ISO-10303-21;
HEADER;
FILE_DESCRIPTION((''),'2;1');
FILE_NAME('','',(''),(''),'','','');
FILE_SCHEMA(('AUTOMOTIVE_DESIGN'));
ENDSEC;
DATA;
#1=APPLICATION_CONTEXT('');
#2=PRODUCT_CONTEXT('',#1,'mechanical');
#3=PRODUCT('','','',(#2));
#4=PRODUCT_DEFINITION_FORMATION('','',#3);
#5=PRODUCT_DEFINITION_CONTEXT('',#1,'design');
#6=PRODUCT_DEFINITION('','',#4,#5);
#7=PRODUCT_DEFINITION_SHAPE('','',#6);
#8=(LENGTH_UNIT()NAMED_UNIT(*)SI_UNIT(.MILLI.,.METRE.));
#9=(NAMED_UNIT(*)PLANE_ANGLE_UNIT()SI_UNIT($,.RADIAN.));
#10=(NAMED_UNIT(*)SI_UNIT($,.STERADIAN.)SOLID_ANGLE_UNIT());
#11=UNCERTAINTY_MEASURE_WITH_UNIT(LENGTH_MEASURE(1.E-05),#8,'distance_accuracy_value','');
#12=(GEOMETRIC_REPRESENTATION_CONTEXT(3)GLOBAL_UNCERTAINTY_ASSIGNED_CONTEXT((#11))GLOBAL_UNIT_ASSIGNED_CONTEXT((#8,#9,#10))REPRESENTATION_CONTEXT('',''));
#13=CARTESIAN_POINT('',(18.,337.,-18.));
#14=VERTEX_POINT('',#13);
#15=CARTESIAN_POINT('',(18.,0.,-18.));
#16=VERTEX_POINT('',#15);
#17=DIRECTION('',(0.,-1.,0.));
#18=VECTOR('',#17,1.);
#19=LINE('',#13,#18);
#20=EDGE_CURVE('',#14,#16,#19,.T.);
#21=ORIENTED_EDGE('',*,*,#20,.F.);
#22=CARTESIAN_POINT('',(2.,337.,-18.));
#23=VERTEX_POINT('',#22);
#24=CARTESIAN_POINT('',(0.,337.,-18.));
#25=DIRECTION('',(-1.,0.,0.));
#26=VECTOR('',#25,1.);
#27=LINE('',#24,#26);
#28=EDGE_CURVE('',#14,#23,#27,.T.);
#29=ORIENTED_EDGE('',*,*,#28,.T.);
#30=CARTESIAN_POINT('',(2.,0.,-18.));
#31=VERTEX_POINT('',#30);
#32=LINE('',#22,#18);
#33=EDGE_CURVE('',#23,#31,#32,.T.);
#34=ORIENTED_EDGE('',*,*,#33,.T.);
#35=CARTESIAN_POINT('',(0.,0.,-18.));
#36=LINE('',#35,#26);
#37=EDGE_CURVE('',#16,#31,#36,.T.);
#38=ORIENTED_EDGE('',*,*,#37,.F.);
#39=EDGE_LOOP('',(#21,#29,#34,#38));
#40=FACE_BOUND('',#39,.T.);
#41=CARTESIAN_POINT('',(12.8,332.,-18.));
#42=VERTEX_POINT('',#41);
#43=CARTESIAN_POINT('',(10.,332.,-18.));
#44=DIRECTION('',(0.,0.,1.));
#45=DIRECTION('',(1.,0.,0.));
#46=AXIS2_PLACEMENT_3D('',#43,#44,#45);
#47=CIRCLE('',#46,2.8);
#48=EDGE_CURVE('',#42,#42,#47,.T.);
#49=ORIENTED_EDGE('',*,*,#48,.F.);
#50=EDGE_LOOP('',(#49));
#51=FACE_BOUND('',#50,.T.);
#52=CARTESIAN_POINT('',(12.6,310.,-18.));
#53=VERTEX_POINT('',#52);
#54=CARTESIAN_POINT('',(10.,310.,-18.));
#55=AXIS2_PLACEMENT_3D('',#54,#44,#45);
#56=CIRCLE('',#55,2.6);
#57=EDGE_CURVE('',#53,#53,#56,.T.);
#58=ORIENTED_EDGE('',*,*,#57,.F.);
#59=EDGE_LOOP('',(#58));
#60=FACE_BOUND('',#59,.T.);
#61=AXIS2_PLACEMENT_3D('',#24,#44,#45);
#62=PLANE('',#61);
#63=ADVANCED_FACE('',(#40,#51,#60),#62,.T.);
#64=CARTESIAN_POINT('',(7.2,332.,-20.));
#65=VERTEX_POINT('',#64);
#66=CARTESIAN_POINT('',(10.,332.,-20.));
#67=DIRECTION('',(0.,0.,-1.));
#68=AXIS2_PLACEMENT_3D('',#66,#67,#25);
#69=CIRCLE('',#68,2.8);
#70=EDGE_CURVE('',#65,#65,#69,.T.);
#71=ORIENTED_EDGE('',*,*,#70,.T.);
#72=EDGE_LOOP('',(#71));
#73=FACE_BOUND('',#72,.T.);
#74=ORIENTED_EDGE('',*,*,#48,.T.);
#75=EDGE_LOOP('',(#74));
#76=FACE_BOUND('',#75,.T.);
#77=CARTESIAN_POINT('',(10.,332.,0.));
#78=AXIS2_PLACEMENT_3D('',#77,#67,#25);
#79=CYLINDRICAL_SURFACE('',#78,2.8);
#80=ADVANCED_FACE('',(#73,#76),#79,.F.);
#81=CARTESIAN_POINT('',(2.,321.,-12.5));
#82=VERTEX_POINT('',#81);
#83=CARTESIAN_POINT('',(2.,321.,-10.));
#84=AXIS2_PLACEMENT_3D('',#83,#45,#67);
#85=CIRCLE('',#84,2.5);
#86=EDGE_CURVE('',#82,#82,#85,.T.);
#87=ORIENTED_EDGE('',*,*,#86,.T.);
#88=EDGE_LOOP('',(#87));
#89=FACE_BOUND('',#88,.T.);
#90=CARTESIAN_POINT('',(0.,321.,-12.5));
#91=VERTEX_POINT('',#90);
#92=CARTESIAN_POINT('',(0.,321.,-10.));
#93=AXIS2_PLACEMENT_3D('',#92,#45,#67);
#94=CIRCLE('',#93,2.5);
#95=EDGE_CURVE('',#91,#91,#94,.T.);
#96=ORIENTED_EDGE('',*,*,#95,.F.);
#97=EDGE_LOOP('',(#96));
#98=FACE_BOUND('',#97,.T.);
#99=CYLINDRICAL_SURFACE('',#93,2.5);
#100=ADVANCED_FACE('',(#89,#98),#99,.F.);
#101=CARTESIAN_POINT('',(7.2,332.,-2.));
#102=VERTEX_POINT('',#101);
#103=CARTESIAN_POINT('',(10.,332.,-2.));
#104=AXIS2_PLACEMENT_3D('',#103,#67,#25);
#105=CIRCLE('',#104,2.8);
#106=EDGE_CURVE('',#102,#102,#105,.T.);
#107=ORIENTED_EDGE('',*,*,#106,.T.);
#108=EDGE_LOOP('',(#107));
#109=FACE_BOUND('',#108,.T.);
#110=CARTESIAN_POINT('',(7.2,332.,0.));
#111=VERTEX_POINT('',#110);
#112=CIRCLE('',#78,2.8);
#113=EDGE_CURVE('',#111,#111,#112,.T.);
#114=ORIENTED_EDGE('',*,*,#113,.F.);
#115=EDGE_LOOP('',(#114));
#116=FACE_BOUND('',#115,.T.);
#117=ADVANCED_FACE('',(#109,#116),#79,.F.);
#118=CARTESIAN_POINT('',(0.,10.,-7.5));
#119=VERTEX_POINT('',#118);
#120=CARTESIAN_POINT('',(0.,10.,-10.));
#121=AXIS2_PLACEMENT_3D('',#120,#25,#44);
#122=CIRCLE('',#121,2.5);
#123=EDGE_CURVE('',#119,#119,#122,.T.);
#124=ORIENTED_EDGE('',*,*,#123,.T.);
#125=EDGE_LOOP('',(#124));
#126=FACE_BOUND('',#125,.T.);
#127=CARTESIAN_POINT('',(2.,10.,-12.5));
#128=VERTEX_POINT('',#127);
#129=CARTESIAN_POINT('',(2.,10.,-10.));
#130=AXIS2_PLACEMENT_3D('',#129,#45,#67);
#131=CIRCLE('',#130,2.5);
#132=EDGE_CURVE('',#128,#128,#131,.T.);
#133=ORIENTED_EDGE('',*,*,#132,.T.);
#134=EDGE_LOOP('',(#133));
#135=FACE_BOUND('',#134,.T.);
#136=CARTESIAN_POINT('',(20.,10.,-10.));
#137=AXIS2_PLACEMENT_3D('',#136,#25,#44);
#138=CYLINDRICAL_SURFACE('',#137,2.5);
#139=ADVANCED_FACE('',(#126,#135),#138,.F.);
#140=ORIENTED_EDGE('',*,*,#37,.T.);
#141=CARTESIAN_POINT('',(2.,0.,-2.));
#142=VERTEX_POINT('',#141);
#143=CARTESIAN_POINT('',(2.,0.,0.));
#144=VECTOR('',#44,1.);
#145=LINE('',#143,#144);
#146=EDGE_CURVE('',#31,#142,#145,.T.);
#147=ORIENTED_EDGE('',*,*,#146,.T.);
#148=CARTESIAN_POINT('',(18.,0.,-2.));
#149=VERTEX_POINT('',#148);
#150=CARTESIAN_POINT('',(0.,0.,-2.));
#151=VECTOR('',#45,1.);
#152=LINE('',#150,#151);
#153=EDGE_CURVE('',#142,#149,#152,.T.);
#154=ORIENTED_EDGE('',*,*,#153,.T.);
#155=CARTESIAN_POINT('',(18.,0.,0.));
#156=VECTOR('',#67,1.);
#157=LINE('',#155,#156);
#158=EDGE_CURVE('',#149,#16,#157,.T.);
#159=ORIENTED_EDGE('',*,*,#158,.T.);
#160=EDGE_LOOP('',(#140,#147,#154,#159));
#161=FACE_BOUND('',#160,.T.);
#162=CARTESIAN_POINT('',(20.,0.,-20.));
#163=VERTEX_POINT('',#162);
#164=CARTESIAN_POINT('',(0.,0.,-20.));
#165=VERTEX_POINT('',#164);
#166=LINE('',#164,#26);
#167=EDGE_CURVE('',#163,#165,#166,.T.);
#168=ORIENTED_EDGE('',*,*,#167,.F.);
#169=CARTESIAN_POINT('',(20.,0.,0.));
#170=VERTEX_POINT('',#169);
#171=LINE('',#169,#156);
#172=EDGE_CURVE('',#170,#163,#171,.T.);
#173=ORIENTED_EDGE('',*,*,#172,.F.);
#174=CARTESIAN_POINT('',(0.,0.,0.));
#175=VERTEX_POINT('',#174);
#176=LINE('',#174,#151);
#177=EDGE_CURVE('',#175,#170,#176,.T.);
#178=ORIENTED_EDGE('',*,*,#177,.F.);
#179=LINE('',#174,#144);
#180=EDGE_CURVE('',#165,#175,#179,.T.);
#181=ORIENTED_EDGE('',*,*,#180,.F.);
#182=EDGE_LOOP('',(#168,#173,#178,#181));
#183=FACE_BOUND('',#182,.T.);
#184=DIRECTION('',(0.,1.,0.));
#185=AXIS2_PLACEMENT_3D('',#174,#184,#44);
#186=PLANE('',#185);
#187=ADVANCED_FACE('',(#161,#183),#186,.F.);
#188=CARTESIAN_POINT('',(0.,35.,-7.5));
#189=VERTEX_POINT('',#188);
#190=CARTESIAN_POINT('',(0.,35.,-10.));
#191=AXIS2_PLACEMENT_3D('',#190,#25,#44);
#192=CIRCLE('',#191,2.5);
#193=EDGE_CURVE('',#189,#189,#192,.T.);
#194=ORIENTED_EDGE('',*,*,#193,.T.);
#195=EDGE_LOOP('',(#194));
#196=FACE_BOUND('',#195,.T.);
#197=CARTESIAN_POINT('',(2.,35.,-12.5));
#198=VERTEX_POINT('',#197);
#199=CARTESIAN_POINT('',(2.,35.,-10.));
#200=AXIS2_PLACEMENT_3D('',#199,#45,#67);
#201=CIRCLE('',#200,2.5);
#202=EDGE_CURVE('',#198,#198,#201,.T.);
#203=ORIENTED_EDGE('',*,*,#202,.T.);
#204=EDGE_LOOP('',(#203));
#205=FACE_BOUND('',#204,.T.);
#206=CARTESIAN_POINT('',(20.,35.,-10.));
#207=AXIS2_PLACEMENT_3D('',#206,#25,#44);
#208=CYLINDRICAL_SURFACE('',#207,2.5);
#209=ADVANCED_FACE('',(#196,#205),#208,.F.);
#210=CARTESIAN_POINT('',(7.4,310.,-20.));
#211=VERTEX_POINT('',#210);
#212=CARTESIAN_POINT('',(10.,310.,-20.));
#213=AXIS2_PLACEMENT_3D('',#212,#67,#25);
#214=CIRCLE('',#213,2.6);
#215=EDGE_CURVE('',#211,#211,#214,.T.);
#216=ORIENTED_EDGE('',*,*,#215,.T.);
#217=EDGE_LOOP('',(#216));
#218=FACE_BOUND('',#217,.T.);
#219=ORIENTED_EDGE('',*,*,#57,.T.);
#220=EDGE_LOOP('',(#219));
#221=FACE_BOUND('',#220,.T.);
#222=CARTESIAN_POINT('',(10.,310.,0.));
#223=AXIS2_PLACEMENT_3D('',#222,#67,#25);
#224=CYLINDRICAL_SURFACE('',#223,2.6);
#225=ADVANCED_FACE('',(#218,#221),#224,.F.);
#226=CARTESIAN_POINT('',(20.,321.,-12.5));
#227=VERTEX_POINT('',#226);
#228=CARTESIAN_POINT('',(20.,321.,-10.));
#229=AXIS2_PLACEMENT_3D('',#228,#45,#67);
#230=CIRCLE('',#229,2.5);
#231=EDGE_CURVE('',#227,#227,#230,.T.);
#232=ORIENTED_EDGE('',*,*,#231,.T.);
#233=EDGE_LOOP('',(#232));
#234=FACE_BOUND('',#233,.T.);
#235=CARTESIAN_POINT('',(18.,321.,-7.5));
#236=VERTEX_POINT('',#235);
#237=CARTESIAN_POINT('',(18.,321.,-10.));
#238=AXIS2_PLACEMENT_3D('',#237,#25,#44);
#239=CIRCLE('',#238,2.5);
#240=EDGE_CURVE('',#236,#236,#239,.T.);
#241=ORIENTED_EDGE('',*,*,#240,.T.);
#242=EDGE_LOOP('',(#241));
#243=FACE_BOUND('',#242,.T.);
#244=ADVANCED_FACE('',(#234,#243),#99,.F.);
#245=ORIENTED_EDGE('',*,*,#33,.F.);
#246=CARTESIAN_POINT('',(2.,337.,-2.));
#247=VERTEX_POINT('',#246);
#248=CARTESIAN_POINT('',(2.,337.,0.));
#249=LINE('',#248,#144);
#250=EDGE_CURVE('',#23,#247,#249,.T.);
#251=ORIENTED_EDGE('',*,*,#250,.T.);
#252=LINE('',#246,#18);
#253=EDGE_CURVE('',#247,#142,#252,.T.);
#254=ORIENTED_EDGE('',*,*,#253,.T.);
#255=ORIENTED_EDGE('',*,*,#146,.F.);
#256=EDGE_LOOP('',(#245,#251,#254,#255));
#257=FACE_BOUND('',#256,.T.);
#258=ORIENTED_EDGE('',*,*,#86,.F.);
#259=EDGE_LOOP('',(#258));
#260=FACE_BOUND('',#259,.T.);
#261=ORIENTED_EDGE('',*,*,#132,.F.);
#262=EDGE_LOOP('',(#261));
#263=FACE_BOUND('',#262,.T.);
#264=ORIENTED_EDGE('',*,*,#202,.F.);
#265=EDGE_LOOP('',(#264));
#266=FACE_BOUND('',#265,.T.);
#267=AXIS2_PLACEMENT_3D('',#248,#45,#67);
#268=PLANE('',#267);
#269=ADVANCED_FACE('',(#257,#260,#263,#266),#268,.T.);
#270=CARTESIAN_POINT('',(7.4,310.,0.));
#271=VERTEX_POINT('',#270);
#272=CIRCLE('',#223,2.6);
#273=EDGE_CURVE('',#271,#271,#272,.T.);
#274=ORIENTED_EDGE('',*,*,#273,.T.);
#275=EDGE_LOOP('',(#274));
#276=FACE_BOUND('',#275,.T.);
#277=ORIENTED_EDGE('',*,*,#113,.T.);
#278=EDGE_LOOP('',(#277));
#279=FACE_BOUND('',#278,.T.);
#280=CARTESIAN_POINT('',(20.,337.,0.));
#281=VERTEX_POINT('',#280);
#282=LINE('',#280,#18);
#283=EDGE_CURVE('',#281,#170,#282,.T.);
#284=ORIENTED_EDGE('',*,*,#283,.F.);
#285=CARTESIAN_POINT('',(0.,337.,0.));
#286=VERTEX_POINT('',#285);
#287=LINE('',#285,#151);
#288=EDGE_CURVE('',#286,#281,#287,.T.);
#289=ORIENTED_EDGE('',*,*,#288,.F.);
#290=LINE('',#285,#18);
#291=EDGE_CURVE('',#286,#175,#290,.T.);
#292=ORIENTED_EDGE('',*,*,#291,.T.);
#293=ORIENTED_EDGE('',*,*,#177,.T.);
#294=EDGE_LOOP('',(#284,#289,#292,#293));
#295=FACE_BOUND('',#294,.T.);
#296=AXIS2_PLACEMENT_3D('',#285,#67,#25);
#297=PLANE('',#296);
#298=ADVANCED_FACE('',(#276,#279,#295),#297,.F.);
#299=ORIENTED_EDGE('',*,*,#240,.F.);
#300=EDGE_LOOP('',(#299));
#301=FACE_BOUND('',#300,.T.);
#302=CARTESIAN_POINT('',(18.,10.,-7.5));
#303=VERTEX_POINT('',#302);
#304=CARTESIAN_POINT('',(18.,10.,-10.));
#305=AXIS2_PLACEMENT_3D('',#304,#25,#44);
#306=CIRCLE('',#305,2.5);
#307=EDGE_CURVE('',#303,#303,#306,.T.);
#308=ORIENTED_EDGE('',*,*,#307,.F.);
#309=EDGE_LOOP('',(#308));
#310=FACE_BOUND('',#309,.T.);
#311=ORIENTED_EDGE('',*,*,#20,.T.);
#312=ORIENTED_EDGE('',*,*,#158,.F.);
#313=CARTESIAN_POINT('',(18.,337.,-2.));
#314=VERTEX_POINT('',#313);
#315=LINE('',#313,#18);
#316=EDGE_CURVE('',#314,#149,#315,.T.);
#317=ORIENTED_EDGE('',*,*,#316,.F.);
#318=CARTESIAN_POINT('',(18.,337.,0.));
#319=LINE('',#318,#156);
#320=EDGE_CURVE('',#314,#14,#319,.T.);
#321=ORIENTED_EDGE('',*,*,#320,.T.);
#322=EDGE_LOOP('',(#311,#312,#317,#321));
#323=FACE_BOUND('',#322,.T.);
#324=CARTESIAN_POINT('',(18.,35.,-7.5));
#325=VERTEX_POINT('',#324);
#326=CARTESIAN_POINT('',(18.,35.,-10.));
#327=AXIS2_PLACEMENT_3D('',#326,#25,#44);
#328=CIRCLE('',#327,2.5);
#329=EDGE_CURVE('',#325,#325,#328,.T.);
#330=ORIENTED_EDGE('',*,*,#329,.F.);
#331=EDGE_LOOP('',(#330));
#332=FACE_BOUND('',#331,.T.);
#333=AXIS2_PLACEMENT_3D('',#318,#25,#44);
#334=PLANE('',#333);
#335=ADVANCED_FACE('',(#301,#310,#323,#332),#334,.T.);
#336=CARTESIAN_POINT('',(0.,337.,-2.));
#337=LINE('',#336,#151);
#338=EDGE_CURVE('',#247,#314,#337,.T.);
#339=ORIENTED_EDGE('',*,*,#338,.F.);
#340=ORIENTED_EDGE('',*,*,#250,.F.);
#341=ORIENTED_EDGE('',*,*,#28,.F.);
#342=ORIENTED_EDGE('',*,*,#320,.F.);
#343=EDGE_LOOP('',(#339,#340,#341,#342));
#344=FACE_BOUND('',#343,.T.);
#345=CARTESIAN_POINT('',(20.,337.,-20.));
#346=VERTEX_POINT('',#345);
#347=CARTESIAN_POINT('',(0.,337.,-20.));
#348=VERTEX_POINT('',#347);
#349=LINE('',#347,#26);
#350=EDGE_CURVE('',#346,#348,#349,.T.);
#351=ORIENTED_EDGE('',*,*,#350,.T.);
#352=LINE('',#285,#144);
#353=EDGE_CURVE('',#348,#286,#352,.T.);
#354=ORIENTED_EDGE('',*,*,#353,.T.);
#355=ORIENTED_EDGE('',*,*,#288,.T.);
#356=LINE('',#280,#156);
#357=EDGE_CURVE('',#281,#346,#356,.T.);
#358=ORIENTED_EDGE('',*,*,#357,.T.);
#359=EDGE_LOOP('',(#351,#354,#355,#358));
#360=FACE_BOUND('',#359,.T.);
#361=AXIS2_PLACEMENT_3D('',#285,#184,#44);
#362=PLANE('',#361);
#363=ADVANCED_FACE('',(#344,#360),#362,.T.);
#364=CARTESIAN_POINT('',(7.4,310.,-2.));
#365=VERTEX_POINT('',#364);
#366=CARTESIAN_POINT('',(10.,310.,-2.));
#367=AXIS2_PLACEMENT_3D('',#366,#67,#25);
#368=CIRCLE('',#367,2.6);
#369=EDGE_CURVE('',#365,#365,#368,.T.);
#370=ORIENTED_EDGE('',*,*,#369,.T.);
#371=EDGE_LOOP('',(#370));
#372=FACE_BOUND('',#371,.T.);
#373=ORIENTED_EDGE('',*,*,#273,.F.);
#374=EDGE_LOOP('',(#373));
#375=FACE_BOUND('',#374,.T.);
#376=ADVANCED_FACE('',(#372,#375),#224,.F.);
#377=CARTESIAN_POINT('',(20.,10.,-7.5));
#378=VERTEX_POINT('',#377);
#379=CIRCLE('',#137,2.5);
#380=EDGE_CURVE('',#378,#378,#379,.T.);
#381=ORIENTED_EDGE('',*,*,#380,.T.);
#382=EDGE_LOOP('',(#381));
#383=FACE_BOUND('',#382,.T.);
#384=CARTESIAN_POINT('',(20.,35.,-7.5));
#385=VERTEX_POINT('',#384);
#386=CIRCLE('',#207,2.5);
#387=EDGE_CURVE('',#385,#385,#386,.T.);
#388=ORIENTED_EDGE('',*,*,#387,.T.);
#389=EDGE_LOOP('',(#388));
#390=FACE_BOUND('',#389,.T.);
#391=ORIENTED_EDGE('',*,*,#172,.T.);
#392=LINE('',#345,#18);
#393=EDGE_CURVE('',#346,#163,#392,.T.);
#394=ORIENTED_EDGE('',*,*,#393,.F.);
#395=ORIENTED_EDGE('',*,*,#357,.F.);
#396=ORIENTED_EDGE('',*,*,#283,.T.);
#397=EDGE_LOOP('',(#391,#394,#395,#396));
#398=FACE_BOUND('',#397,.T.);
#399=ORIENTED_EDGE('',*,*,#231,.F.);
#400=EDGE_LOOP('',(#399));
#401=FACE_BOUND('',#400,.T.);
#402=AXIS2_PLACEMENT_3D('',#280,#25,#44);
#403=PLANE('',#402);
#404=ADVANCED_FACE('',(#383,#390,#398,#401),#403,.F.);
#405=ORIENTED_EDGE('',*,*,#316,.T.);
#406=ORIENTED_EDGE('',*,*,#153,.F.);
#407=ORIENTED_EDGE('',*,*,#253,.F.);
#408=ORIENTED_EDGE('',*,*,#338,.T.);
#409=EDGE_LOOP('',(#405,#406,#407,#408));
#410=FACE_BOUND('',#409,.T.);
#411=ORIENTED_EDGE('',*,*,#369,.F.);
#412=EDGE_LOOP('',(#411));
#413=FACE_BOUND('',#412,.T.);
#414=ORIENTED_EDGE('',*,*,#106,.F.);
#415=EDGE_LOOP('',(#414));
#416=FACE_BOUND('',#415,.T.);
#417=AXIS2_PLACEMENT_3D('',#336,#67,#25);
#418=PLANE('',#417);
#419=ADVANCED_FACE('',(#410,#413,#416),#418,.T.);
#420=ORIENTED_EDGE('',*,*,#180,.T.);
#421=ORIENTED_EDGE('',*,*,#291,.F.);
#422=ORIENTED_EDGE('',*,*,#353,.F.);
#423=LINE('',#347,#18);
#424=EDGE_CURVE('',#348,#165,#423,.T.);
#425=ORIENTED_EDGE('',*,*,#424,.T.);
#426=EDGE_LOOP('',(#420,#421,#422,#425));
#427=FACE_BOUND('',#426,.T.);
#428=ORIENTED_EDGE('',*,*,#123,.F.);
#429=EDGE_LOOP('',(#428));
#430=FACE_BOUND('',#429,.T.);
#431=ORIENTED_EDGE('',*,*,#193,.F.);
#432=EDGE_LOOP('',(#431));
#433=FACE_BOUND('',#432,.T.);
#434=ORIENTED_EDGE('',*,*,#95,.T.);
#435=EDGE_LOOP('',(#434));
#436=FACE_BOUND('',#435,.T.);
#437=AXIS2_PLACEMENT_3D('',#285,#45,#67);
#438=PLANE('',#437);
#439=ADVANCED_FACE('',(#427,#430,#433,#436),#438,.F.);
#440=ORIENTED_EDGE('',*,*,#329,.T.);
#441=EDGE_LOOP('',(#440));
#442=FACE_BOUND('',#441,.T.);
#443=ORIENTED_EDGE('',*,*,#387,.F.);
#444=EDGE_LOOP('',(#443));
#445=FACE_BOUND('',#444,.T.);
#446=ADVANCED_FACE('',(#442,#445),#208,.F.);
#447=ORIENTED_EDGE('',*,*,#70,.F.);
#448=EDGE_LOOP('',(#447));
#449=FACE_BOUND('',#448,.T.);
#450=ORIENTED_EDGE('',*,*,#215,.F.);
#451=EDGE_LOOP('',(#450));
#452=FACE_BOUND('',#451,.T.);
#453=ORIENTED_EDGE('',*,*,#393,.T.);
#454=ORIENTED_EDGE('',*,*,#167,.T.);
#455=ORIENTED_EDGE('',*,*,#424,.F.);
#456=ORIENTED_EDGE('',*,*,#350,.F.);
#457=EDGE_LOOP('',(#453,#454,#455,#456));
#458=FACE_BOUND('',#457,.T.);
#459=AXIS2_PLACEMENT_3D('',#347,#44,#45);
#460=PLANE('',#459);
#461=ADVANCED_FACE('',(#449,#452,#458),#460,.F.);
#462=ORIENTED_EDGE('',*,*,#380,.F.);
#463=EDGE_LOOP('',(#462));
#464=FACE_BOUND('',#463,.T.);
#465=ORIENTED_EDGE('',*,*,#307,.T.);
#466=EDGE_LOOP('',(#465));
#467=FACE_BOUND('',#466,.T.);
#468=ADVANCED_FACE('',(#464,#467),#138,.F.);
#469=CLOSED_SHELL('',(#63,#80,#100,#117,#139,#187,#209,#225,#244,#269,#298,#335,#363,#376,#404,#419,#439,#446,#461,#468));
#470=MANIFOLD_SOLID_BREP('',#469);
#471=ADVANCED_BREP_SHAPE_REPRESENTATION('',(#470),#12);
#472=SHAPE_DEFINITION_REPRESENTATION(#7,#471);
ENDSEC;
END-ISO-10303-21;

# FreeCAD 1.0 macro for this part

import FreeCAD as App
import Part
import Sketcher


def add_polygon(sketch, points):
    """Adds a closed chain of lines whose ends are joined by coincident constraints."""
    first, n = sketch.GeometryCount, len(points)
    for a, b in zip(points, points[1:] + points[:1]):
        sketch.addGeometry(Part.LineSegment(App.Vector(*a, 0), App.Vector(*b, 0)), False)
    for i in range(n):
        sketch.addConstraint(Sketcher.Constraint("Coincident", first + i, 2, first + (i + 1) % n, 1))

doc = App.newDocument("Part")
body = doc.addObject("PartDesign::Body", "Body")

sketch1 = body.newObject("Sketcher::SketchObject", "Sketch")
sketch1.AttachmentSupport = (doc.getObject("XZ_Plane"), [""])
sketch1.MapMode = "FlatFace"
add_polygon(sketch1, [(0, -20), (0, 0), (20, 0), (20, -20)])
add_polygon(sketch1, [(18, -2), (2, -2), (2, -18), (18, -18)])
sketch1.addConstraint([
    Sketcher.Constraint("Vertical", 0),
    Sketcher.Constraint("Horizontal", 1),
    Sketcher.Constraint("Vertical", 2),
    Sketcher.Constraint("Horizontal", 3),
    Sketcher.Constraint("Horizontal", 4),
    Sketcher.Constraint("Vertical", 5),
    Sketcher.Constraint("Horizontal", 6),
    Sketcher.Constraint("Vertical", 7),
    Sketcher.Constraint("Coincident", 0, 2, -1, 1),
    Sketcher.Constraint("Equal", 3, 0),
    Sketcher.Constraint("Equal", 6, 5),
    Sketcher.Constraint("DistanceX", 1, 1, 1, 2, 20.0),
    Sketcher.Constraint("DistanceX", 4, 2, 4, 1, 16.0),
    Sketcher.Constraint("DistanceX", -1, 1, 4, 2, 2.0),
    Sketcher.Constraint("DistanceY", 4, 2, -1, 1, 2.0),
])
pad1 = body.newObject("PartDesign::Pad", "Pad")
pad1.Profile = sketch1
pad1.Length = 337
pad1.Reversed = True

sketch2 = body.newObject("Sketcher::SketchObject", "Sketch001")
sketch2.AttachmentSupport = (doc.getObject("YZ_Plane"), [""])
sketch2.MapMode = "FlatFace"
sketch2.addGeometry([
    Part.Circle(App.Vector(35, -10, 0), App.Vector(0, 0, 1), 2.5),
    Part.Circle(App.Vector(10, -10, 0), App.Vector(0, 0, 1), 2.5),
], False)
sketch2.addConstraint([
    Sketcher.Constraint("Equal", 0, 1),
    Sketcher.Constraint("Horizontal", 0, 3, 1, 3),
    Sketcher.Constraint("Diameter", 0, 5.0),
    Sketcher.Constraint("DistanceX", -1, 1, 0, 3, 35.0),
    Sketcher.Constraint("DistanceY", 0, 3, -1, 1, 10.0),
    Sketcher.Constraint("DistanceX", -1, 1, 1, 3, 10.0),
])
pocket1 = body.newObject("PartDesign::Pocket", "Pocket")
pocket1.Profile = sketch2
pocket1.Type = "ThroughAll"
pocket1.Reversed = True

sketch3 = body.newObject("Sketcher::SketchObject", "Sketch002")
sketch3.AttachmentSupport = (doc.getObject("XY_Plane"), [""])
sketch3.MapMode = "FlatFace"
sketch3.AttachmentOffset = App.Placement(App.Vector(0, 0, -20), App.Rotation())
sketch3.addGeometry([
    Part.Circle(App.Vector(10, 310, 0), App.Vector(0, 0, 1), 2.6),
    Part.Circle(App.Vector(10, 332, 0), App.Vector(0, 0, 1), 2.8),
], False)
sketch3.addConstraint([
    Sketcher.Constraint("Vertical", 0, 3, 1, 3),
    Sketcher.Constraint("Diameter", 0, 5.2),
    Sketcher.Constraint("Diameter", 1, 5.6),
    Sketcher.Constraint("DistanceX", -1, 1, 0, 3, 10.0),
    Sketcher.Constraint("DistanceY", -1, 1, 0, 3, 310.0),
    Sketcher.Constraint("DistanceY", -1, 1, 1, 3, 332.0),
])
pocket2 = body.newObject("PartDesign::Pocket", "Pocket001")
pocket2.Profile = sketch3
pocket2.Type = "ThroughAll"
pocket2.Reversed = True

sketch4 = body.newObject("Sketcher::SketchObject", "Sketch003")
sketch4.AttachmentSupport = (doc.getObject("YZ_Plane"), [""])
sketch4.MapMode = "FlatFace"
sketch4.AttachmentOffset = App.Placement(App.Vector(0, 0, 20), App.Rotation())
sketch4.addGeometry(Part.Circle(App.Vector(321, -10, 0), App.Vector(0, 0, 1), 2.5), False)
sketch4.addConstraint([
    Sketcher.Constraint("Diameter", 0, 5.0),
    Sketcher.Constraint("DistanceX", -1, 1, 0, 3, 321.0),
    Sketcher.Constraint("DistanceY", 0, 3, -1, 1, 10.0),
])
pocket3 = body.newObject("PartDesign::Pocket", "Pocket002")
pocket3.Profile = sketch4
pocket3.Type = "ThroughAll"

doc.recompute()
